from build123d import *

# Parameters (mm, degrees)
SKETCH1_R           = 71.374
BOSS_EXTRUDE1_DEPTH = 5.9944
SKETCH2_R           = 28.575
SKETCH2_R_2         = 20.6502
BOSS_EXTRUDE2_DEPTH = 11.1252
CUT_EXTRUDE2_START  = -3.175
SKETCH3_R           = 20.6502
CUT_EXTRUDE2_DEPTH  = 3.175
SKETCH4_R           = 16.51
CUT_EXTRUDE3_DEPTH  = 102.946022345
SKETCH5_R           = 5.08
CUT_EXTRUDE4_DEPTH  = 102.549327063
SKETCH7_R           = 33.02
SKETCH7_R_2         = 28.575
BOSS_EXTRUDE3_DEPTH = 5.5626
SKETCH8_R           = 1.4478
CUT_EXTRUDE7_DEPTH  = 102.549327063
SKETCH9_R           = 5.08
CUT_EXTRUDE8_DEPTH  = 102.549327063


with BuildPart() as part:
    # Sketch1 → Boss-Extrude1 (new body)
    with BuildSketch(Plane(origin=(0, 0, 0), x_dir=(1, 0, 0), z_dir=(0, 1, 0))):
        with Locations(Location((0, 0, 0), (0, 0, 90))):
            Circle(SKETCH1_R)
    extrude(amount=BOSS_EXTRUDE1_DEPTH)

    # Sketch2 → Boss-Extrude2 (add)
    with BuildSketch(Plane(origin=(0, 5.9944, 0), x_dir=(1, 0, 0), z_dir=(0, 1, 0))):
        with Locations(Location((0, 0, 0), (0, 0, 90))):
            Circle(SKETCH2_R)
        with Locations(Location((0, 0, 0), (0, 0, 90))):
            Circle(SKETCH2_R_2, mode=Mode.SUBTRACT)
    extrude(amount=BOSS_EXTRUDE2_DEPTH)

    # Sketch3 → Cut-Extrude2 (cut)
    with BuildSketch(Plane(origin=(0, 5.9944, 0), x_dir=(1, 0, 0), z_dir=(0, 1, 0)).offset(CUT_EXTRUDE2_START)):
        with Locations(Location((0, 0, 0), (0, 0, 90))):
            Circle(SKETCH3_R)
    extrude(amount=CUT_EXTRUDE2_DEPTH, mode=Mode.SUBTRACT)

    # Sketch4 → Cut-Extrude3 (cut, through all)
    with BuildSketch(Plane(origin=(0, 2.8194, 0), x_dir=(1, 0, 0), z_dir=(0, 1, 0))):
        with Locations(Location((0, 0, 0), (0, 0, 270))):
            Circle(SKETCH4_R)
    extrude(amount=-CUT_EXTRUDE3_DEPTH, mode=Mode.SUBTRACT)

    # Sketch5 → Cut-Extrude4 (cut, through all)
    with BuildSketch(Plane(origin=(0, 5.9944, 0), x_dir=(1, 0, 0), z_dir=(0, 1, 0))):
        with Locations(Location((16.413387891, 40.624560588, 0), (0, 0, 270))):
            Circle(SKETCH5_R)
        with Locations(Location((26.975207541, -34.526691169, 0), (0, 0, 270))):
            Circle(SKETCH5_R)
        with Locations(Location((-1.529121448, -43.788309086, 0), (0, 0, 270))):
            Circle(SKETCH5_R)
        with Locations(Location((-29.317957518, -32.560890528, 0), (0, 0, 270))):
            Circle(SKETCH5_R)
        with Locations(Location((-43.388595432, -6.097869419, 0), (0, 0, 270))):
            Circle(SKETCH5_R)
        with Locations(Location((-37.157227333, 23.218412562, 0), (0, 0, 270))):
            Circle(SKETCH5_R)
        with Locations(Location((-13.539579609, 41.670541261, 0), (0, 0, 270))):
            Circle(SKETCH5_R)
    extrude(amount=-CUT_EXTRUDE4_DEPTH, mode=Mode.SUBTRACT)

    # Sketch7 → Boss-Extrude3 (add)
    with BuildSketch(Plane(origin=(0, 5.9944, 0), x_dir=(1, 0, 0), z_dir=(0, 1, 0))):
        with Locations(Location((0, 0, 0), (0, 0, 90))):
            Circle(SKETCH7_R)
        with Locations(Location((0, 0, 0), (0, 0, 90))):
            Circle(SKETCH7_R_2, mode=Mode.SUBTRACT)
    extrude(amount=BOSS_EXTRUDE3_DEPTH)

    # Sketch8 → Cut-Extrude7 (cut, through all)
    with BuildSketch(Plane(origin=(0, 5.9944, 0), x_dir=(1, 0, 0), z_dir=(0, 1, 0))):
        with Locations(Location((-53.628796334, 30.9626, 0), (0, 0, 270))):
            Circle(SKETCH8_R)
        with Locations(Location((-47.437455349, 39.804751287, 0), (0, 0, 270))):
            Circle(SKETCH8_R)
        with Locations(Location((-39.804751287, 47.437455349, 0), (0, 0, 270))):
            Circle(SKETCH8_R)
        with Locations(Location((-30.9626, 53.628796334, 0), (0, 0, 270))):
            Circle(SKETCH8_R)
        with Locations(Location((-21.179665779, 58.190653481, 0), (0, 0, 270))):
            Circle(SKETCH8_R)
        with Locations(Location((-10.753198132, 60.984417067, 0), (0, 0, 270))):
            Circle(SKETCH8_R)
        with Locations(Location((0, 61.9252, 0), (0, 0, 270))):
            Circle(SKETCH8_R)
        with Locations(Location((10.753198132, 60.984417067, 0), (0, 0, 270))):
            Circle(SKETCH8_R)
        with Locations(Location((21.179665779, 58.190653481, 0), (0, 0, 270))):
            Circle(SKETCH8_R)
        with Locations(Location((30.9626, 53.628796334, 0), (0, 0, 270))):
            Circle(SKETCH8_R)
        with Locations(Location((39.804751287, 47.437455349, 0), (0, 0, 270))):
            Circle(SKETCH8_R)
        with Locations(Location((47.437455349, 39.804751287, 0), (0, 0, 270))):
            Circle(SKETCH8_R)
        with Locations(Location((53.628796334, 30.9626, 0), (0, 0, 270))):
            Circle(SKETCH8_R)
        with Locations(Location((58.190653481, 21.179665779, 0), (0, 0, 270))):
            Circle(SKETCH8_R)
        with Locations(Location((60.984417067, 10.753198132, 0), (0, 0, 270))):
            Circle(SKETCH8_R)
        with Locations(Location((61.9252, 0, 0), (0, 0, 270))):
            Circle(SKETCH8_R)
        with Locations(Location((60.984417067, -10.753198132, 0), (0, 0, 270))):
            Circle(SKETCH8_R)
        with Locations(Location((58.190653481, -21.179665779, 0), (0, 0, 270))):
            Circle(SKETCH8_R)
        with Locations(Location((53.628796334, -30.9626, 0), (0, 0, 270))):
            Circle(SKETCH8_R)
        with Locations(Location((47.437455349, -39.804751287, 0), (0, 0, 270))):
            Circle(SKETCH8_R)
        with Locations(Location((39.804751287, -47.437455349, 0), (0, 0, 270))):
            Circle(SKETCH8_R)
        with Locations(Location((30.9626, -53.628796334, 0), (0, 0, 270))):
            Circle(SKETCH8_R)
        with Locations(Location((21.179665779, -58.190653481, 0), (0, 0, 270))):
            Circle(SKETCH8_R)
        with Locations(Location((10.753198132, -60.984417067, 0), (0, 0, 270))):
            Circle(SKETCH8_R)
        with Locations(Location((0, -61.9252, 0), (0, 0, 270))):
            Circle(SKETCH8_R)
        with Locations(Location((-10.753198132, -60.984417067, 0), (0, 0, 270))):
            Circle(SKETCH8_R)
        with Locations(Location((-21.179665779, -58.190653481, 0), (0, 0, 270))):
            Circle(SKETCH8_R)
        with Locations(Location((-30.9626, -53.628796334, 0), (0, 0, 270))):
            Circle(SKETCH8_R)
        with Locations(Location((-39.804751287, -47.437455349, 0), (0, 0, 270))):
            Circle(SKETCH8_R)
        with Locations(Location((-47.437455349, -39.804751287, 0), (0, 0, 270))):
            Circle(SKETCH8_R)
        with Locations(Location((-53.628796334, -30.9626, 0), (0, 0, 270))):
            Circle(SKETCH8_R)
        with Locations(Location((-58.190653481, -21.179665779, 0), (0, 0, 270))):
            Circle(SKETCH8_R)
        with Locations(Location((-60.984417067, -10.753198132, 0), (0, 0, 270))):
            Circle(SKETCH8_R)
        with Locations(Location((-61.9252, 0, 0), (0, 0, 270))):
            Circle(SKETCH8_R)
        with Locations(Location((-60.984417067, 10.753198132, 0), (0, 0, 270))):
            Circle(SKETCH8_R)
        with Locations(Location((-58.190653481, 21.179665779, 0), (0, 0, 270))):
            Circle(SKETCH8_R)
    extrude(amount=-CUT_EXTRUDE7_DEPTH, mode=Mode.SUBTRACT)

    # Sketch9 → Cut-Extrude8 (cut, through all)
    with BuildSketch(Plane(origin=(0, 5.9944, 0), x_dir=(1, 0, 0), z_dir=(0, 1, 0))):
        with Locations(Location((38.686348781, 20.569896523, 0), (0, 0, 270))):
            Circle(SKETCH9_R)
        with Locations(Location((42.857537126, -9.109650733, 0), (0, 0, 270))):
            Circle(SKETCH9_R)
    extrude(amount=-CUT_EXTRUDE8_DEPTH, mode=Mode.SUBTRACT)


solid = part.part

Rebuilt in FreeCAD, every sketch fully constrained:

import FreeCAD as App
import Part
import Sketcher
Q = App.Units.Quantity

doc = App.newDocument("Part")
body = doc.addObject("PartDesign::Body", "Body")

# Sketch on XZ plane
sketch1 = body.newObject("Sketcher::SketchObject", "Sketch")
sketch1.AttachmentSupport = (doc.getObject("XZ_Plane"), [""])
sketch1.MapMode = "FlatFace"
sketch1.addGeometry(Part.Circle(App.Vector(0, 0, 0), App.Vector(0, 0, 1), 71.374), False)
sketch1.addConstraint([
    Sketcher.Constraint("Coincident", 0, 3, -1, 1),
    Sketcher.Constraint("Diameter", 0, Q("5.62 in")),
])
pad1 = body.newObject("PartDesign::Pad", "Pad")
pad1.Profile = sketch1
pad1.Length = Q("0.236 in")
pad1.Reversed = True

# Sketch on XZ plane
sketch2 = body.newObject("Sketcher::SketchObject", "Sketch001")
sketch2.AttachmentSupport = (doc.getObject("XZ_Plane"), [""])
sketch2.MapMode = "FlatFace"
sketch2.AttachmentOffset = App.Placement(App.Vector(0, 0, -0.236 * 25.4), App.Rotation())
sketch2.addGeometry([
    Part.Circle(App.Vector(0, 0, 0), App.Vector(0, 0, 1), 28.575),
    Part.Circle(App.Vector(0, 0, 0), App.Vector(0, 0, 1), 20.6502),
], False)
sketch2.addConstraint([
    Sketcher.Constraint("Coincident", 0, 3, -1, 1),
    Sketcher.Constraint("Coincident", 1, 3, -1, 1),
    Sketcher.Constraint("Diameter", 0, Q("2.25 in")),
    Sketcher.Constraint("Diameter", 1, Q("1.626 in")),
])
pad2 = body.newObject("PartDesign::Pad", "Pad001")
pad2.Profile = sketch2
pad2.Length = Q("0.438 in")
pad2.Reversed = True

# Sketch on XZ plane
sketch3 = body.newObject("Sketcher::SketchObject", "Sketch002")
sketch3.AttachmentSupport = (doc.getObject("XZ_Plane"), [""])
sketch3.MapMode = "FlatFace"
sketch3.AttachmentOffset = App.Placement(App.Vector(0, 0, -0.111 * 25.4), App.Rotation())
sketch3.addGeometry(Part.Circle(App.Vector(0, 0, 0), App.Vector(0, 0, 1), 20.6502), False)
sketch3.addConstraint([
    Sketcher.Constraint("Coincident", 0, 3, -1, 1),
    Sketcher.Constraint("Diameter", 0, Q("1.626 in")),
])
pocket1 = body.newObject("PartDesign::Pocket", "Pocket")
pocket1.Profile = sketch3
pocket1.Length = Q("0.125 in")

# Sketch on XZ plane
sketch4 = body.newObject("Sketcher::SketchObject", "Sketch003")
sketch4.AttachmentSupport = (doc.getObject("XZ_Plane"), [""])
sketch4.MapMode = "FlatFace"
sketch4.AttachmentOffset = App.Placement(App.Vector(0, 0, -0.111 * 25.4), App.Rotation())
sketch4.addGeometry(Part.Circle(App.Vector(0, 0, 0), App.Vector(0, 0, 1), 16.51), False)
sketch4.addConstraint([
    Sketcher.Constraint("Coincident", 0, 3, -1, 1),
    Sketcher.Constraint("Diameter", 0, Q("1.3 in")),
])
pocket2 = body.newObject("PartDesign::Pocket", "Pocket001")
pocket2.Profile = sketch4
pocket2.Type = "ThroughAll"
pocket2.Reversed = True

# Sketch on XZ plane
sketch5 = body.newObject("Sketcher::SketchObject", "Sketch004")
sketch5.AttachmentSupport = (doc.getObject("XZ_Plane"), [""])
sketch5.MapMode = "FlatFace"
sketch5.AttachmentOffset = App.Placement(App.Vector(0, 0, -0.236 * 25.4), App.Rotation())
sketch5.addGeometry([
    Part.Circle(App.Vector(16.413388, -40.624561, 0), App.Vector(0, 0, 1), 5.08),  # 0
    Part.Circle(App.Vector(26.975208, 34.526691, 0), App.Vector(0, 0, 1), 5.08),  # 1
    Part.Circle(App.Vector(-1.529121, 43.788309, 0), App.Vector(0, 0, 1), 5.08),  # 2
    Part.Circle(App.Vector(-29.317958, 32.560891, 0), App.Vector(0, 0, 1), 5.08),  # 3
    Part.Circle(App.Vector(-43.388595, 6.097869, 0), App.Vector(0, 0, 1), 5.08),  # 4
    Part.Circle(App.Vector(-37.157227, -23.218413, 0), App.Vector(0, 0, 1), 5.08),  # 5
    Part.Circle(App.Vector(-13.53958, -41.670541, 0), App.Vector(0, 0, 1), 5.08),  # 6
], False)
sketch5.addConstraint([
    Sketcher.Constraint("Equal", 0, 1),
    Sketcher.Constraint("Equal", 1, 2),
    Sketcher.Constraint("Equal", 2, 3),
    Sketcher.Constraint("Equal", 3, 4),
    Sketcher.Constraint("Equal", 4, 5),
    Sketcher.Constraint("Equal", 5, 6),
    Sketcher.Constraint("Diameter", 0, Q("0.4 in")),
    Sketcher.Constraint("DistanceY", 3, 3, 1, 3, Q("1.965801 mm")),
    Sketcher.Constraint("DistanceY", 0, 3, -1, 1, Q("40.624561 mm")),
    Sketcher.Constraint("DistanceY", -1, 1, 1, 3, Q("34.526691 mm")),
    Sketcher.Constraint("DistanceX", 2, 3, -1, 1, Q("1.529121 mm")),
    Sketcher.Constraint("DistanceY", -1, 1, 2, 3, Q("43.788309 mm")),
    Sketcher.Constraint("DistanceY", -1, 1, 4, 3, Q("6.097869 mm")),
    Sketcher.Constraint("DistanceX", 6, 3, -1, 1, Q("13.53958 mm")),
    Sketcher.Constraint("DistanceY", 6, 3, -1, 1, Q("41.670541 mm")),
    Sketcher.Constraint("DistanceX", 0, 3, 1, 3, Q("10.56182 mm")),
    Sketcher.Constraint("DistanceX", 2, 3, 1, 3, Q("28.504329 mm")),
    Sketcher.Constraint("DistanceX", 4, 3, 5, 3, Q("6.231368 mm")),
    Sketcher.Constraint("DistanceY", 5, 3, 4, 3, Q("29.316282 mm")),
    Sketcher.Constraint("DistanceX", 5, 3, 3, 3, Q("7.83927 mm")),
    Sketcher.Constraint("DistanceX", 3, 3, -1, 1, Q("29.317958 mm")),
])
pocket3 = body.newObject("PartDesign::Pocket", "Pocket002")
pocket3.Profile = sketch5
pocket3.Type = "ThroughAll"
pocket3.Reversed = True

# Sketch on XZ plane
sketch6 = body.newObject("Sketcher::SketchObject", "Sketch005")
sketch6.AttachmentSupport = (doc.getObject("XZ_Plane"), [""])
sketch6.MapMode = "FlatFace"
sketch6.AttachmentOffset = App.Placement(App.Vector(0, 0, -0.236 * 25.4), App.Rotation())
sketch6.addGeometry([
    Part.Circle(App.Vector(0, 0, 0), App.Vector(0, 0, 1), 33.02),
    Part.Circle(App.Vector(0, 0, 0), App.Vector(0, 0, 1), 28.575),
], False)
sketch6.addConstraint([
    Sketcher.Constraint("Coincident", 0, 3, -1, 1),
    Sketcher.Constraint("Coincident", 1, 3, -1, 1),
    Sketcher.Constraint("Diameter", 0, Q("2.6 in")),
    Sketcher.Constraint("Diameter", 1, Q("2.25 in")),
])
pad3 = body.newObject("PartDesign::Pad", "Pad002")
pad3.Profile = sketch6
pad3.Length = Q("0.219 in")
pad3.Reversed = True

# Sketch on XZ plane
sketch7 = body.newObject("Sketcher::SketchObject", "Sketch006")
sketch7.AttachmentSupport = (doc.getObject("XZ_Plane"), [""])
sketch7.MapMode = "FlatFace"
sketch7.AttachmentOffset = App.Placement(App.Vector(0, 0, -0.236 * 25.4), App.Rotation())
sketch7.addGeometry([
    Part.Circle(App.Vector(-53.628796, -30.9626, 0), App.Vector(0, 0, 1), 1.4478),  # 0
    Part.Circle(App.Vector(-47.437455, -39.804751, 0), App.Vector(0, 0, 1), 1.4478),  # 1
    Part.Circle(App.Vector(-39.804751, -47.437455, 0), App.Vector(0, 0, 1), 1.4478),  # 2
    Part.Circle(App.Vector(-30.9626, -53.628796, 0), App.Vector(0, 0, 1), 1.4478),  # 3
    Part.Circle(App.Vector(-21.179666, -58.190653, 0), App.Vector(0, 0, 1), 1.4478),  # 4
    Part.Circle(App.Vector(-10.753198, -60.984417, 0), App.Vector(0, 0, 1), 1.4478),  # 5
    Part.Circle(App.Vector(0, -61.9252, 0), App.Vector(0, 0, 1), 1.4478),  # 6
    Part.Circle(App.Vector(10.753198, -60.984417, 0), App.Vector(0, 0, 1), 1.4478),  # 7
    Part.Circle(App.Vector(21.179666, -58.190653, 0), App.Vector(0, 0, 1), 1.4478),  # 8
    Part.Circle(App.Vector(30.9626, -53.628796, 0), App.Vector(0, 0, 1), 1.4478),  # 9
    Part.Circle(App.Vector(39.804751, -47.437455, 0), App.Vector(0, 0, 1), 1.4478),  # 10
    Part.Circle(App.Vector(47.437455, -39.804751, 0), App.Vector(0, 0, 1), 1.4478),  # 11
    Part.Circle(App.Vector(53.628796, -30.9626, 0), App.Vector(0, 0, 1), 1.4478),  # 12
    Part.Circle(App.Vector(58.190653, -21.179666, 0), App.Vector(0, 0, 1), 1.4478),  # 13
    Part.Circle(App.Vector(60.984417, -10.753198, 0), App.Vector(0, 0, 1), 1.4478),  # 14
    Part.Circle(App.Vector(61.9252, 0, 0), App.Vector(0, 0, 1), 1.4478),  # 15
    Part.Circle(App.Vector(60.984417, 10.753198, 0), App.Vector(0, 0, 1), 1.4478),  # 16
    Part.Circle(App.Vector(58.190653, 21.179666, 0), App.Vector(0, 0, 1), 1.4478),  # 17
    Part.Circle(App.Vector(53.628796, 30.9626, 0), App.Vector(0, 0, 1), 1.4478),  # 18
    Part.Circle(App.Vector(47.437455, 39.804751, 0), App.Vector(0, 0, 1), 1.4478),  # 19
    Part.Circle(App.Vector(39.804751, 47.437455, 0), App.Vector(0, 0, 1), 1.4478),  # 20
    Part.Circle(App.Vector(30.9626, 53.628796, 0), App.Vector(0, 0, 1), 1.4478),  # 21
    Part.Circle(App.Vector(21.179666, 58.190653, 0), App.Vector(0, 0, 1), 1.4478),  # 22
    Part.Circle(App.Vector(10.753198, 60.984417, 0), App.Vector(0, 0, 1), 1.4478),  # 23
    Part.Circle(App.Vector(0, 61.9252, 0), App.Vector(0, 0, 1), 1.4478),  # 24
    Part.Circle(App.Vector(-10.753198, 60.984417, 0), App.Vector(0, 0, 1), 1.4478),  # 25
    Part.Circle(App.Vector(-21.179666, 58.190653, 0), App.Vector(0, 0, 1), 1.4478),  # 26
    Part.Circle(App.Vector(-30.9626, 53.628796, 0), App.Vector(0, 0, 1), 1.4478),  # 27
    Part.Circle(App.Vector(-39.804751, 47.437455, 0), App.Vector(0, 0, 1), 1.4478),  # 28
    Part.Circle(App.Vector(-47.437455, 39.804751, 0), App.Vector(0, 0, 1), 1.4478),  # 29
    Part.Circle(App.Vector(-53.628796, 30.9626, 0), App.Vector(0, 0, 1), 1.4478),  # 30
    Part.Circle(App.Vector(-58.190653, 21.179666, 0), App.Vector(0, 0, 1), 1.4478),  # 31
    Part.Circle(App.Vector(-60.984417, 10.753198, 0), App.Vector(0, 0, 1), 1.4478),  # 32
    Part.Circle(App.Vector(-61.9252, 0, 0), App.Vector(0, 0, 1), 1.4478),  # 33
    Part.Circle(App.Vector(-60.984417, -10.753198, 0), App.Vector(0, 0, 1), 1.4478),  # 34
    Part.Circle(App.Vector(-58.190653, -21.179666, 0), App.Vector(0, 0, 1), 1.4478),  # 35
], False)
sketch7.addConstraint([
    Sketcher.Constraint("Equal", 0, 1),
    Sketcher.Constraint("Equal", 1, 2),
    Sketcher.Constraint("Equal", 2, 3),
    Sketcher.Constraint("Equal", 3, 4),
    Sketcher.Constraint("Equal", 4, 5),
    Sketcher.Constraint("Equal", 5, 6),
    Sketcher.Constraint("Equal", 6, 7),
    Sketcher.Constraint("Equal", 7, 8),
    Sketcher.Constraint("Equal", 8, 9),
    Sketcher.Constraint("Equal", 9, 10),
    Sketcher.Constraint("Equal", 10, 11),
    Sketcher.Constraint("Equal", 11, 12),
    Sketcher.Constraint("Equal", 12, 13),
    Sketcher.Constraint("Equal", 13, 14),
    Sketcher.Constraint("Equal", 14, 15),
    Sketcher.Constraint("Equal", 15, 16),
    Sketcher.Constraint("Equal", 16, 17),
    Sketcher.Constraint("Equal", 17, 18),
    Sketcher.Constraint("Equal", 18, 19),
    Sketcher.Constraint("Equal", 19, 20),
    Sketcher.Constraint("Equal", 20, 21),
    Sketcher.Constraint("Equal", 21, 22),
    Sketcher.Constraint("Equal", 22, 23),
    Sketcher.Constraint("Equal", 23, 24),
    Sketcher.Constraint("Equal", 24, 25),
    Sketcher.Constraint("Equal", 25, 26),
    Sketcher.Constraint("Equal", 26, 27),
    Sketcher.Constraint("Equal", 27, 28),
    Sketcher.Constraint("Equal", 28, 29),
    Sketcher.Constraint("Equal", 29, 30),
    Sketcher.Constraint("Equal", 30, 31),
    Sketcher.Constraint("Equal", 31, 32),
    Sketcher.Constraint("Equal", 32, 33),
    Sketcher.Constraint("Equal", 33, 34),
    Sketcher.Constraint("Equal", 34, 35),
    Sketcher.Constraint("Symmetric", 0, 3, 18, 3, -1, 1),
    Sketcher.Constraint("Symmetric", 1, 3, 19, 3, -1, 1),
    Sketcher.Constraint("Symmetric", 2, 3, 20, 3, -1, 1),
    Sketcher.Constraint("Symmetric", 3, 3, 21, 3, -1, 1),
    Sketcher.Constraint("Symmetric", 4, 3, 22, 3, -1, 1),
    Sketcher.Constraint("Symmetric", 5, 3, 23, 3, -1, 1),
    Sketcher.Constraint("Symmetric", 6, 3, 24, 3, -1, 1),
    Sketcher.Constraint("Symmetric", 7, 3, 25, 3, -1, 1),
    Sketcher.Constraint("Symmetric", 8, 3, 26, 3, -1, 1),
    Sketcher.Constraint("Symmetric", 9, 3, 27, 3, -1, 1),
    Sketcher.Constraint("Symmetric", 10, 3, 28, 3, -1, 1),
    Sketcher.Constraint("Symmetric", 11, 3, 29, 3, -1, 1),
    Sketcher.Constraint("Symmetric", 12, 3, 30, 3, -1, 1),
    Sketcher.Constraint("Symmetric", 13, 3, 31, 3, -1, 1),
    Sketcher.Constraint("Symmetric", 14, 3, 32, 3, -1, 1),
    Sketcher.Constraint("Symmetric", 15, 3, 33, 3, -1, 1),
    Sketcher.Constraint("Symmetric", 16, 3, 34, 3, -1, 1),
    Sketcher.Constraint("Symmetric", 17, 3, 35, 3, -1, 1),
    Sketcher.Constraint("Symmetric", 5, 3, 7, 3, -2),
    Sketcher.Constraint("Symmetric", 4, 3, 8, 3, -2),
    Sketcher.Constraint("Symmetric", 3, 3, 9, 3, -2),
    Sketcher.Constraint("Symmetric", 2, 3, 10, 3, -2),
    Sketcher.Constraint("Symmetric", 1, 3, 11, 3, -2),
    Sketcher.Constraint("Symmetric", 0, 3, 12, 3, -2),
    Sketcher.Constraint("Symmetric", 17, 3, 31, 3, -2),
    Sketcher.Constraint("Symmetric", 16, 3, 32, 3, -2),
    Sketcher.Constraint("PointOnObject", 6, 3, -2),
    Sketcher.Constraint("PointOnObject", 15, 3, -1),
    Sketcher.Constraint("Diameter", 0, Q("0.114 in")),
    Sketcher.Constraint("DistanceY", 0, 3, -1, 1, Q("1.219 in")),
    Sketcher.Constraint("DistanceX", 3, 3, -1, 1, Q("1.219 in")),
    Sketcher.Constraint("DistanceY", 6, 3, -1, 1, Q("2.438 in")),
    Sketcher.Constraint("DistanceX", -1, 1, 15, 3, Q("2.438 in")),
    Sketcher.Constraint("DistanceX", 1, 3, 2, 3, Q("0.3005002 in")),
    Sketcher.Constraint("DistanceY", 2, 3, 1, 3, Q("0.3005002 in")),
    Sketcher.Constraint("DistanceX", 5, 3, -1, 1, Q("10.753198 mm")),
    Sketcher.Constraint("DistanceY", 14, 3, -1, 1, Q("10.753198 mm")),
    Sketcher.Constraint("DistanceY", 4, 3, 2, 3, Q("10.753198 mm")),
    Sketcher.Constraint("DistanceX", 0, 3, 5, 3, Q("42.875598 mm")),
    Sketcher.Constraint("DistanceX", 11, 3, 13, 3, Q("10.753198 mm")),
    Sketcher.Constraint("DistanceY", 9, 3, 14, 3, Q("42.875598 mm")),
    Sketcher.Constraint("DistanceY", 1, 3, -1, 1, Q("39.804751 mm")),
    Sketcher.Constraint("DistanceX", 2, 3, -1, 1, Q("39.804751 mm")),
    Sketcher.Constraint("DistanceX", 1, 3, 4, 3, Q("26.25779 mm")),
    Sketcher.Constraint("DistanceY", 5, 3, 3, 3, Q("7.355621 mm")),
    Sketcher.Constraint("DistanceY", 10, 3, 13, 3, Q("26.25779 mm")),
    Sketcher.Constraint("DistanceX", 12, 3, 14, 3, Q("7.355621 mm")),
])
pocket4 = body.newObject("PartDesign::Pocket", "Pocket003")
pocket4.Profile = sketch7
pocket4.Type = "ThroughAll"
pocket4.Reversed = True

# Sketch on XZ plane
sketch8 = body.newObject("Sketcher::SketchObject", "Sketch007")
sketch8.AttachmentSupport = (doc.getObject("XZ_Plane"), [""])
sketch8.MapMode = "FlatFace"
sketch8.AttachmentOffset = App.Placement(App.Vector(0, 0, -0.236 * 25.4), App.Rotation())
sketch8.addGeometry([
    Part.Circle(App.Vector(38.686349, -20.569897, 0), App.Vector(0, 0, 1), 5.08),
    Part.Circle(App.Vector(42.857537, 9.109651, 0), App.Vector(0, 0, 1), 5.08),
], False)
sketch8.addConstraint([
    Sketcher.Constraint("Equal", 0, 1),
    Sketcher.Constraint("Diameter", 0, Q("0.4 in")),
    Sketcher.Constraint("DistanceX", -1, 1, 0, 3, Q("38.686349 mm")),
    Sketcher.Constraint("DistanceY", -1, 1, 1, 3, Q("9.109651 mm")),
    Sketcher.Constraint("DistanceX", 0, 3, 1, 3, Q("4.171188 mm")),
    Sketcher.Constraint("DistanceY", 0, 3, -1, 1, Q("20.569897 mm")),
])
pocket5 = body.newObject("PartDesign::Pocket", "Pocket004")
pocket5.Profile = sketch8
pocket5.Type = "ThroughAll"
pocket5.Reversed = True

doc.recompute()
